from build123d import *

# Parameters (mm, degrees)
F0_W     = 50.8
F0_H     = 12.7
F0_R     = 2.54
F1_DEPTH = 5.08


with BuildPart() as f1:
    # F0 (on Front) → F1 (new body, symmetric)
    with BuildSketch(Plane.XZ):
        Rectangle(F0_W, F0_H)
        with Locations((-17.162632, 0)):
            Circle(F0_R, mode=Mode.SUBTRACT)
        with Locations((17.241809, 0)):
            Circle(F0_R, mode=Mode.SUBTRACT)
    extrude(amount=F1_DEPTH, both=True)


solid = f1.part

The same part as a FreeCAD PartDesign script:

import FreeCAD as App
import Part
import Sketcher
from FreeCAD import Vector
Q = App.Units.Quantity


def add_polygon(sketch, points):
    """Adds a closed chain of lines whose ends are joined by coincident constraints."""
    first, n = sketch.GeometryCount, len(points)
    for a, b in zip(points, points[1:] + points[:1]):
        sketch.addGeometry(Part.LineSegment(App.Vector(*a, 0), App.Vector(*b, 0)), False)
    for i in range(n):
        sketch.addConstraint(Sketcher.Constraint("Coincident", first + i, 2, first + (i + 1) % n, 1))

doc = App.newDocument("Part")
params = doc.addObject("Spreadsheet::Sheet", "Params")
for row, (alias, value) in enumerate([
    ("sketch1_diameter", "0.2 in"),
    ("sketch1_width", "2 in"),
    ("sketch1_height", "0.5 in"),
    ("pad1_length", "0.4 in"),
], start=1):
    params.set(f"A{row}", alias)
    params.set(f"B{row}", "=" + value)
    params.setAlias(f"B{row}", alias)

body = doc.addObject("PartDesign::Body", "Body")

# Sketch on XZ plane
sketch1 = body.newObject("Sketcher::SketchObject", "Sketch")
sketch1.AttachmentSupport = (doc.getObject("XZ_Plane"), [""])
sketch1.MapMode = "FlatFace"
add_polygon(sketch1, [(-25.4, 6.3), (-25.4, -6.3), (25.4, -6.3), (25.4, 6.3)])  # lines 0-3
sketch1.addGeometry(Part.Circle(Vector(-17.2, 0, 0), Vector(0, 0, 1), 2.5), False)  # 4
sketch1.addGeometry(Part.Circle(Vector(17.2, 0, 0), Vector(0, 0, 1), 2.5), False)  # 5
sketch1.addConstraint([
    Sketcher.Constraint("Vertical", 0),
    Sketcher.Constraint("Horizontal", 1),
    Sketcher.Constraint("Vertical", 2),
    Sketcher.Constraint("Horizontal", 3),
    Sketcher.Constraint("Equal", 4, 5),
    Sketcher.Constraint("Symmetric", 0, 2, 2, 2, -1, 1),
    Sketcher.Constraint("PointOnObject", 4, 3, -1),
    Sketcher.Constraint("PointOnObject", 5, 3, -1),
    Sketcher.Constraint("Diameter", 4, Q("0.2 in")),
    Sketcher.Constraint("DistanceX", 1, 1, 1, 2, Q("2 in")),
    Sketcher.Constraint("DistanceY", 0, 2, 0, 1, Q("0.5 in")),
    Sketcher.Constraint("DistanceX", 4, 3, -1, 1, 17.162632),
    Sketcher.Constraint("DistanceX", -1, 1, 5, 3, 17.241809),
])
sketch1.setExpression("Constraints[12]", "Params.sketch1_diameter")
sketch1.setExpression("Constraints[13]", "Params.sketch1_width")
sketch1.setExpression("Constraints[14]", "Params.sketch1_height")
pad1 = body.newObject("PartDesign::Pad", "Pad")
pad1.Profile = sketch1
pad1.setExpression("Length", "Params.pad1_length")
pad1.Midplane = True

doc.recompute()
